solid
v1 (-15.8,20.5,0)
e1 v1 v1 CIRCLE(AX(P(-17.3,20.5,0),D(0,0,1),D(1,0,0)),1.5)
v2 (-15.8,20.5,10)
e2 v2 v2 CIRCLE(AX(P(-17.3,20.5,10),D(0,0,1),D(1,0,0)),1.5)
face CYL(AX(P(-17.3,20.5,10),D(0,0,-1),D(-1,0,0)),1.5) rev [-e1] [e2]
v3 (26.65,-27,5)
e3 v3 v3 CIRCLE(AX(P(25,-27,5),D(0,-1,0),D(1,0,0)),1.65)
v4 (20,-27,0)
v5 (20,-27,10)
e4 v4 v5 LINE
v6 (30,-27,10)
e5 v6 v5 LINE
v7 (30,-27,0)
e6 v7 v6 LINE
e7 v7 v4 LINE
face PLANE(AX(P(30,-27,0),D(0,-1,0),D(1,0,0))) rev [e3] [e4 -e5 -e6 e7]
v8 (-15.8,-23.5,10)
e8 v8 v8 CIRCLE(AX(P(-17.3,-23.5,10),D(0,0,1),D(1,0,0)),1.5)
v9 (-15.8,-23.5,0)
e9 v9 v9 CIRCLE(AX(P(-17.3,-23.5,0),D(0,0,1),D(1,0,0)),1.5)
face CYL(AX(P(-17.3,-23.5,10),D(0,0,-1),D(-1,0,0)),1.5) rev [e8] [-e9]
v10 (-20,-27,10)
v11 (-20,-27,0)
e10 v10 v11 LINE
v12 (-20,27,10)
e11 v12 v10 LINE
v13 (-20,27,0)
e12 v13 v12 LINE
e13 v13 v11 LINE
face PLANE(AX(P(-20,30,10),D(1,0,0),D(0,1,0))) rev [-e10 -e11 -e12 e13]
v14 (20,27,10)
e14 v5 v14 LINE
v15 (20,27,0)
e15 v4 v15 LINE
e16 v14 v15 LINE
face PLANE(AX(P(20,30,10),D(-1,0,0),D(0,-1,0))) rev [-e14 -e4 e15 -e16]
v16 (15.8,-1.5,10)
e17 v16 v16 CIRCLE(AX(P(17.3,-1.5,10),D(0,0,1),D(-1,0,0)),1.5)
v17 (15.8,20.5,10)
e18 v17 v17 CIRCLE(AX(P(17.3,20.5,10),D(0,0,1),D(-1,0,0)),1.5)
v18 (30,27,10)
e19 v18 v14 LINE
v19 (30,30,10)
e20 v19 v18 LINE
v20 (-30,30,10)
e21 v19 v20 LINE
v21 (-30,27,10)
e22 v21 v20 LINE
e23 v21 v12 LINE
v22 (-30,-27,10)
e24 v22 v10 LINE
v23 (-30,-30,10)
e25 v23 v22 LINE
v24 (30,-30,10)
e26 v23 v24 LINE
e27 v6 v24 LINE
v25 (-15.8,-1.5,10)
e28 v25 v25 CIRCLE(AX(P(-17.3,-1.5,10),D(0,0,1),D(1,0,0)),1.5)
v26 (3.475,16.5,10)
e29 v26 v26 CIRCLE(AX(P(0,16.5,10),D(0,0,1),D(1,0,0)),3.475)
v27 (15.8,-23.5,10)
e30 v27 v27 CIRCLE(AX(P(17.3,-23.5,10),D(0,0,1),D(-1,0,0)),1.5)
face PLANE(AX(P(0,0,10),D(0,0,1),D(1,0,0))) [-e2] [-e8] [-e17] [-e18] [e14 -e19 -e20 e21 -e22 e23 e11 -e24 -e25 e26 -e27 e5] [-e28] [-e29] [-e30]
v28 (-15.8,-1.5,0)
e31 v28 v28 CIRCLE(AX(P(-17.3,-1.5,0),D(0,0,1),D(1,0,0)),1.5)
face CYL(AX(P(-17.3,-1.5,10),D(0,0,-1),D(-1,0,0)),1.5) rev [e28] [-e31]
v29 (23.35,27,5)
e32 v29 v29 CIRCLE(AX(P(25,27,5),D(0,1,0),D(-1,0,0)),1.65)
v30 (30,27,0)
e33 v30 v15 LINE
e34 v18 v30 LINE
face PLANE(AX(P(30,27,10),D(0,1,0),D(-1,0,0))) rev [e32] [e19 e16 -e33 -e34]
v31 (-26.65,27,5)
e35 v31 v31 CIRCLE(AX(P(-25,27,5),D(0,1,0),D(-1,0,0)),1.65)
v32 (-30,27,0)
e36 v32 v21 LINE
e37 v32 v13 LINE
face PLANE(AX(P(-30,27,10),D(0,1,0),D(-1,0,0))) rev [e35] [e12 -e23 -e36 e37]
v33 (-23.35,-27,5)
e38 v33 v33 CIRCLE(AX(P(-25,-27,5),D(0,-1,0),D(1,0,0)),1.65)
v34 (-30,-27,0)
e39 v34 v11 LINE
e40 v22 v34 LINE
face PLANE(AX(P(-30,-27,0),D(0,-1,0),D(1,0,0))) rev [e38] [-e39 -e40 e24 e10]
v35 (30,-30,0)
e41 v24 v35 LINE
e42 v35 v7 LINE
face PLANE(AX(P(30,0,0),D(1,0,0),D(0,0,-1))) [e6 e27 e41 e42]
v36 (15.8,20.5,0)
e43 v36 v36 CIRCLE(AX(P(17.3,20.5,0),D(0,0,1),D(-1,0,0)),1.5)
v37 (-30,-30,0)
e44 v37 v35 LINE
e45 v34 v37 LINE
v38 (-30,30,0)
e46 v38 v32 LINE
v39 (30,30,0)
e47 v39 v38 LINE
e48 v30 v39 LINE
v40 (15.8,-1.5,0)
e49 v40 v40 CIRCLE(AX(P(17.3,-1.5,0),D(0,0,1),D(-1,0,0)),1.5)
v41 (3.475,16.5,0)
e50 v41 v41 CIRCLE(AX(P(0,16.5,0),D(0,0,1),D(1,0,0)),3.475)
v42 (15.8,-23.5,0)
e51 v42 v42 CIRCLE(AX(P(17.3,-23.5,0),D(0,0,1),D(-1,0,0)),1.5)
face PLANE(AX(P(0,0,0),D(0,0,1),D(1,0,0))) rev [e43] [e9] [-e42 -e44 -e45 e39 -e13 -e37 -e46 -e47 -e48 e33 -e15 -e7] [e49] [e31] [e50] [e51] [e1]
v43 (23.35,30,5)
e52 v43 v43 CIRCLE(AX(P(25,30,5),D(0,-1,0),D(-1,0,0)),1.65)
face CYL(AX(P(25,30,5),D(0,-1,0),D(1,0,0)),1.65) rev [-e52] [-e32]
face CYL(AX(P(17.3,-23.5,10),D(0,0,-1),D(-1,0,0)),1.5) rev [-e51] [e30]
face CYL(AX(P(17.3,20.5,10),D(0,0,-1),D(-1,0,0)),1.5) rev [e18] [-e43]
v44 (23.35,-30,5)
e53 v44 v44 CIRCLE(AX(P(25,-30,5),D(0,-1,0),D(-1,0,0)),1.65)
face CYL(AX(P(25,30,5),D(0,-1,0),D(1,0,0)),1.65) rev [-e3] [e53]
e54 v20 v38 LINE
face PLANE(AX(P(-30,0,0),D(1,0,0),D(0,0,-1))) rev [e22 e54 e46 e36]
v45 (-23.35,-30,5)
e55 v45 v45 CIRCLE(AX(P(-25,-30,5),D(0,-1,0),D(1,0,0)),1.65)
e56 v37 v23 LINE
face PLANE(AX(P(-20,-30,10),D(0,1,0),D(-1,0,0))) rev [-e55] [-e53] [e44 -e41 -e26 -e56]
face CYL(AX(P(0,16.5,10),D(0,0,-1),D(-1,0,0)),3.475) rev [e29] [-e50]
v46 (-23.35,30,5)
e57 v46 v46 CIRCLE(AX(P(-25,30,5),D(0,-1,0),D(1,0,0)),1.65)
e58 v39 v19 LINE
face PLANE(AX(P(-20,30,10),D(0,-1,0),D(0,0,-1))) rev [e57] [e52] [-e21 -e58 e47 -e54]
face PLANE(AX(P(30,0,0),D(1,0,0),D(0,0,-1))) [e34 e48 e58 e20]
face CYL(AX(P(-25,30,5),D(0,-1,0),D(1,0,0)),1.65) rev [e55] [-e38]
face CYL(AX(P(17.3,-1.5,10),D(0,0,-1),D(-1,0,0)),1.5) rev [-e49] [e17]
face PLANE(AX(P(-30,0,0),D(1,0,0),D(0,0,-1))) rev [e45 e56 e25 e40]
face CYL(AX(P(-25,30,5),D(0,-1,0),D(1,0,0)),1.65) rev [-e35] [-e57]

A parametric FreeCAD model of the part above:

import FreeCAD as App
import Part
import Sketcher

V = App.Vector

doc = App.newDocument("Part")
body = doc.addObject("PartDesign::Body", "Body")

sketch1 = body.newObject("Sketcher::SketchObject", "Sketch")
sketch1.AttachmentSupport = (doc.getObject("XY_Plane"), [""])
sketch1.MapMode = "FlatFace"
sketch1.addGeometry([
    Part.LineSegment(V(-20, 30, 0), V(-20, -30, 0)),
    Part.LineSegment(V(-20, -30, 0), V(20, -30, 0)),
    Part.LineSegment(V(20, -30, 0), V(20, 30, 0)),
    Part.LineSegment(V(20, 30, 0), V(-20, 30, 0)),
    Part.Circle(V(-17.3, -23.5, 0), V(0, 0, 1), 1.5),
    Part.Circle(V(17.3, -23.5, 0), V(0, 0, 1), 1.5),
    Part.Circle(V(-17.3, -1.5, 0), V(0, 0, 1), 1.5),
    Part.Circle(V(-17.3, 20.5, 0), V(0, 0, 1), 1.5),
    Part.Circle(V(17.3, -1.5, 0), V(0, 0, 1), 1.5),
    Part.Circle(V(0, 16.5, 0), V(0, 0, 1), 3.5),
    Part.Circle(V(17.3, 20.5, 0), V(0, 0, 1), 1.5),
], False)
sketch1.addConstraint([
    Sketcher.Constraint("Coincident", 0, 2, 1, 1),
    Sketcher.Constraint("Coincident", 1, 2, 2, 1),
    Sketcher.Constraint("Coincident", 2, 2, 3, 1),
    Sketcher.Constraint("Coincident", 3, 2, 0, 1),
    Sketcher.Constraint("Vertical", 0),
    Sketcher.Constraint("Horizontal", 1),
    Sketcher.Constraint("Vertical", 2),
    Sketcher.Constraint("Horizontal", 3),
    Sketcher.Constraint("Equal", 4, 5),
    Sketcher.Constraint("Equal", 5, 6),
    Sketcher.Constraint("Equal", 6, 7),
    Sketcher.Constraint("Equal", 7, 8),
    Sketcher.Constraint("Equal", 8, 10),
    Sketcher.Constraint("Symmetric", 0, 2, 2, 2, -1, 1),
    Sketcher.Constraint("Symmetric", 4, 3, 5, 3, -2),
    Sketcher.Constraint("Symmetric", 6, 3, 8, 3, -2),
    Sketcher.Constraint("Symmetric", 7, 3, 10, 3, -2),
    Sketcher.Constraint("PointOnObject", 9, 3, -2),
    Sketcher.Constraint("Vertical", 4, 3, 6, 3),
    Sketcher.Constraint("Vertical", 6, 3, 7, 3),
    Sketcher.Constraint("Diameter", 4, 3.0),
    Sketcher.Constraint("Diameter", 9, 6.95),
    Sketcher.Constraint("DistanceX", 1, 1, 1, 2, 40.0),
    Sketcher.Constraint("DistanceY", 0, 2, 0, 1, 60.0),
    Sketcher.Constraint("DistanceY", 4, 3, 6, 3, 22.0),
    Sketcher.Constraint("DistanceY", 6, 3, 7, 3, 22.0),
    Sketcher.Constraint("DistanceY", 9, 3, 7, 3, 4.0),
    Sketcher.Constraint("DistanceX", 4, 3, -1, 1, 17.3),
    Sketcher.Constraint("DistanceY", 4, 3, -1, 1, 23.5),
])
pad1 = body.newObject("PartDesign::Pad", "Pad")
pad1.Profile = sketch1
pad1.Length = 10

sketch2 = body.newObject("Sketcher::SketchObject", "Sketch001")
sketch2.AttachmentSupport = (doc.getObject("YZ_Plane"), [""])
sketch2.MapMode = "FlatFace"
sketch2.AttachmentOffset = App.Placement(V(0, 0, 20), App.Rotation())
sketch2.addGeometry([
    Part.LineSegment(V(30, 10, 0), V(27, 10, 0)),
    Part.LineSegment(V(27, 10, 0), V(27, 0, 0)),
    Part.LineSegment(V(27, 0, 0), V(30, 0, 0)),
    Part.LineSegment(V(30, 0, 0), V(30, 10, 0)),
    Part.LineSegment(V(-27, 10, 0), V(-30, 10, 0)),
    Part.LineSegment(V(-30, 10, 0), V(-30, 0, 0)),
    Part.LineSegment(V(-30, 0, 0), V(-27, 0, 0)),
    Part.LineSegment(V(-27, 0, 0), V(-27, 10, 0)),
], False)
sketch2.addConstraint([
    Sketcher.Constraint("Coincident", 0, 2, 1, 1),
    Sketcher.Constraint("Coincident", 1, 2, 2, 1),
    Sketcher.Constraint("Coincident", 2, 2, 3, 1),
    Sketcher.Constraint("Coincident", 3, 2, 0, 1),
    Sketcher.Constraint("Coincident", 4, 2, 5, 1),
    Sketcher.Constraint("Coincident", 5, 2, 6, 1),
    Sketcher.Constraint("Coincident", 6, 2, 7, 1),
    Sketcher.Constraint("Coincident", 7, 2, 4, 1),
    Sketcher.Constraint("Horizontal", 0),
    Sketcher.Constraint("Vertical", 1),
    Sketcher.Constraint("Horizontal", 2),
    Sketcher.Constraint("Vertical", 3),
    Sketcher.Constraint("Horizontal", 4),
    Sketcher.Constraint("Vertical", 5),
    Sketcher.Constraint("Horizontal", 6),
    Sketcher.Constraint("Vertical", 7),
    Sketcher.Constraint("Symmetric", 2, 2, 5, 2, -1, 1),
    Sketcher.Constraint("Symmetric", 1, 2, 6, 2, -2),
    Sketcher.Constraint("Horizontal", 3, 2, 4, 2),
    Sketcher.Constraint("DistanceX", 0, 2, 0, 1, 3.0),
    Sketcher.Constraint("DistanceY", 1, 2, 1, 1, 10.0),
    Sketcher.Constraint("DistanceX", -1, 1, 0, 2, 27.0),
])
pad2 = body.newObject("PartDesign::Pad", "Pad001")
pad2.Profile = sketch2
pad2.Length = 10

sketch3 = body.newObject("Sketcher::SketchObject", "Sketch002")
sketch3.AttachmentSupport = (doc.getObject("YZ_Plane"), [""])
sketch3.MapMode = "FlatFace"
sketch3.AttachmentOffset = App.Placement(V(0, 0, -20), App.Rotation())
sketch3.addGeometry([
    Part.LineSegment(V(30, 0, 0), V(27, 0, 0)),
    Part.LineSegment(V(27, 0, 0), V(27, 10, 0)),
    Part.LineSegment(V(27, 10, 0), V(30, 10, 0)),
    Part.LineSegment(V(30, 10, 0), V(30, 0, 0)),
    Part.LineSegment(V(-27, 0, 0), V(-30, 0, 0)),
    Part.LineSegment(V(-30, 0, 0), V(-30, 10, 0)),
    Part.LineSegment(V(-30, 10, 0), V(-27, 10, 0)),
    Part.LineSegment(V(-27, 10, 0), V(-27, 0, 0)),
], False)
sketch3.addConstraint([
    Sketcher.Constraint("Coincident", 0, 2, 1, 1),
    Sketcher.Constraint("Coincident", 1, 2, 2, 1),
    Sketcher.Constraint("Coincident", 2, 2, 3, 1),
    Sketcher.Constraint("Coincident", 3, 2, 0, 1),
    Sketcher.Constraint("Coincident", 4, 2, 5, 1),
    Sketcher.Constraint("Coincident", 5, 2, 6, 1),
    Sketcher.Constraint("Coincident", 6, 2, 7, 1),
    Sketcher.Constraint("Coincident", 7, 2, 4, 1),
    Sketcher.Constraint("Horizontal", 0),
    Sketcher.Constraint("Vertical", 1),
    Sketcher.Constraint("Horizontal", 2),
    Sketcher.Constraint("Vertical", 3),
    Sketcher.Constraint("Horizontal", 4),
    Sketcher.Constraint("Vertical", 5),
    Sketcher.Constraint("Horizontal", 6),
    Sketcher.Constraint("Vertical", 7),
    Sketcher.Constraint("Symmetric", 3, 2, 4, 2, -1, 1),
    Sketcher.Constraint("Symmetric", 1, 2, 6, 2, -2),
    Sketcher.Constraint("PointOnObject", 0, 2, -1),
    Sketcher.Constraint("DistanceX", 0, 2, 0, 1, 3.0),
    Sketcher.Constraint("DistanceY", 1, 1, 1, 2, 10.0),
    Sketcher.Constraint("DistanceX", -1, 1, 0, 2, 27.0),
])
pad3 = body.newObject("PartDesign::Pad", "Pad002")
pad3.Profile = sketch3
pad3.Length = 10
pad3.Reversed = True

sketch4 = body.newObject("Sketcher::SketchObject", "Sketch003")
sketch4.AttachmentSupport = (doc.getObject("XZ_Plane"), [""])
sketch4.MapMode = "FlatFace"
sketch4.AttachmentOffset = App.Placement(V(0, 0, -27), App.Rotation())
sketch4.addGeometry([
    Part.Circle(V(-25, 5, 0), V(0, 0, 1), 1.6),
    Part.Circle(V(25, 5, 0), V(0, 0, 1), 1.6),
], False)
sketch4.addConstraint([
    Sketcher.Constraint("Equal", 0, 1),
    Sketcher.Constraint("Symmetric", 0, 3, 1, 3, -2),
    Sketcher.Constraint("Diameter", 0, 3.3),
    Sketcher.Constraint("DistanceX", 0, 3, -1, 1, 25.0),
    Sketcher.Constraint("DistanceY", -1, 1, 0, 3, 5.0),
])
pocket1 = body.newObject("PartDesign::Pocket", "Pocket")
pocket1.Profile = sketch4
pocket1.Type = "ThroughAll"
pocket1.Midplane = True

doc.recompute()
